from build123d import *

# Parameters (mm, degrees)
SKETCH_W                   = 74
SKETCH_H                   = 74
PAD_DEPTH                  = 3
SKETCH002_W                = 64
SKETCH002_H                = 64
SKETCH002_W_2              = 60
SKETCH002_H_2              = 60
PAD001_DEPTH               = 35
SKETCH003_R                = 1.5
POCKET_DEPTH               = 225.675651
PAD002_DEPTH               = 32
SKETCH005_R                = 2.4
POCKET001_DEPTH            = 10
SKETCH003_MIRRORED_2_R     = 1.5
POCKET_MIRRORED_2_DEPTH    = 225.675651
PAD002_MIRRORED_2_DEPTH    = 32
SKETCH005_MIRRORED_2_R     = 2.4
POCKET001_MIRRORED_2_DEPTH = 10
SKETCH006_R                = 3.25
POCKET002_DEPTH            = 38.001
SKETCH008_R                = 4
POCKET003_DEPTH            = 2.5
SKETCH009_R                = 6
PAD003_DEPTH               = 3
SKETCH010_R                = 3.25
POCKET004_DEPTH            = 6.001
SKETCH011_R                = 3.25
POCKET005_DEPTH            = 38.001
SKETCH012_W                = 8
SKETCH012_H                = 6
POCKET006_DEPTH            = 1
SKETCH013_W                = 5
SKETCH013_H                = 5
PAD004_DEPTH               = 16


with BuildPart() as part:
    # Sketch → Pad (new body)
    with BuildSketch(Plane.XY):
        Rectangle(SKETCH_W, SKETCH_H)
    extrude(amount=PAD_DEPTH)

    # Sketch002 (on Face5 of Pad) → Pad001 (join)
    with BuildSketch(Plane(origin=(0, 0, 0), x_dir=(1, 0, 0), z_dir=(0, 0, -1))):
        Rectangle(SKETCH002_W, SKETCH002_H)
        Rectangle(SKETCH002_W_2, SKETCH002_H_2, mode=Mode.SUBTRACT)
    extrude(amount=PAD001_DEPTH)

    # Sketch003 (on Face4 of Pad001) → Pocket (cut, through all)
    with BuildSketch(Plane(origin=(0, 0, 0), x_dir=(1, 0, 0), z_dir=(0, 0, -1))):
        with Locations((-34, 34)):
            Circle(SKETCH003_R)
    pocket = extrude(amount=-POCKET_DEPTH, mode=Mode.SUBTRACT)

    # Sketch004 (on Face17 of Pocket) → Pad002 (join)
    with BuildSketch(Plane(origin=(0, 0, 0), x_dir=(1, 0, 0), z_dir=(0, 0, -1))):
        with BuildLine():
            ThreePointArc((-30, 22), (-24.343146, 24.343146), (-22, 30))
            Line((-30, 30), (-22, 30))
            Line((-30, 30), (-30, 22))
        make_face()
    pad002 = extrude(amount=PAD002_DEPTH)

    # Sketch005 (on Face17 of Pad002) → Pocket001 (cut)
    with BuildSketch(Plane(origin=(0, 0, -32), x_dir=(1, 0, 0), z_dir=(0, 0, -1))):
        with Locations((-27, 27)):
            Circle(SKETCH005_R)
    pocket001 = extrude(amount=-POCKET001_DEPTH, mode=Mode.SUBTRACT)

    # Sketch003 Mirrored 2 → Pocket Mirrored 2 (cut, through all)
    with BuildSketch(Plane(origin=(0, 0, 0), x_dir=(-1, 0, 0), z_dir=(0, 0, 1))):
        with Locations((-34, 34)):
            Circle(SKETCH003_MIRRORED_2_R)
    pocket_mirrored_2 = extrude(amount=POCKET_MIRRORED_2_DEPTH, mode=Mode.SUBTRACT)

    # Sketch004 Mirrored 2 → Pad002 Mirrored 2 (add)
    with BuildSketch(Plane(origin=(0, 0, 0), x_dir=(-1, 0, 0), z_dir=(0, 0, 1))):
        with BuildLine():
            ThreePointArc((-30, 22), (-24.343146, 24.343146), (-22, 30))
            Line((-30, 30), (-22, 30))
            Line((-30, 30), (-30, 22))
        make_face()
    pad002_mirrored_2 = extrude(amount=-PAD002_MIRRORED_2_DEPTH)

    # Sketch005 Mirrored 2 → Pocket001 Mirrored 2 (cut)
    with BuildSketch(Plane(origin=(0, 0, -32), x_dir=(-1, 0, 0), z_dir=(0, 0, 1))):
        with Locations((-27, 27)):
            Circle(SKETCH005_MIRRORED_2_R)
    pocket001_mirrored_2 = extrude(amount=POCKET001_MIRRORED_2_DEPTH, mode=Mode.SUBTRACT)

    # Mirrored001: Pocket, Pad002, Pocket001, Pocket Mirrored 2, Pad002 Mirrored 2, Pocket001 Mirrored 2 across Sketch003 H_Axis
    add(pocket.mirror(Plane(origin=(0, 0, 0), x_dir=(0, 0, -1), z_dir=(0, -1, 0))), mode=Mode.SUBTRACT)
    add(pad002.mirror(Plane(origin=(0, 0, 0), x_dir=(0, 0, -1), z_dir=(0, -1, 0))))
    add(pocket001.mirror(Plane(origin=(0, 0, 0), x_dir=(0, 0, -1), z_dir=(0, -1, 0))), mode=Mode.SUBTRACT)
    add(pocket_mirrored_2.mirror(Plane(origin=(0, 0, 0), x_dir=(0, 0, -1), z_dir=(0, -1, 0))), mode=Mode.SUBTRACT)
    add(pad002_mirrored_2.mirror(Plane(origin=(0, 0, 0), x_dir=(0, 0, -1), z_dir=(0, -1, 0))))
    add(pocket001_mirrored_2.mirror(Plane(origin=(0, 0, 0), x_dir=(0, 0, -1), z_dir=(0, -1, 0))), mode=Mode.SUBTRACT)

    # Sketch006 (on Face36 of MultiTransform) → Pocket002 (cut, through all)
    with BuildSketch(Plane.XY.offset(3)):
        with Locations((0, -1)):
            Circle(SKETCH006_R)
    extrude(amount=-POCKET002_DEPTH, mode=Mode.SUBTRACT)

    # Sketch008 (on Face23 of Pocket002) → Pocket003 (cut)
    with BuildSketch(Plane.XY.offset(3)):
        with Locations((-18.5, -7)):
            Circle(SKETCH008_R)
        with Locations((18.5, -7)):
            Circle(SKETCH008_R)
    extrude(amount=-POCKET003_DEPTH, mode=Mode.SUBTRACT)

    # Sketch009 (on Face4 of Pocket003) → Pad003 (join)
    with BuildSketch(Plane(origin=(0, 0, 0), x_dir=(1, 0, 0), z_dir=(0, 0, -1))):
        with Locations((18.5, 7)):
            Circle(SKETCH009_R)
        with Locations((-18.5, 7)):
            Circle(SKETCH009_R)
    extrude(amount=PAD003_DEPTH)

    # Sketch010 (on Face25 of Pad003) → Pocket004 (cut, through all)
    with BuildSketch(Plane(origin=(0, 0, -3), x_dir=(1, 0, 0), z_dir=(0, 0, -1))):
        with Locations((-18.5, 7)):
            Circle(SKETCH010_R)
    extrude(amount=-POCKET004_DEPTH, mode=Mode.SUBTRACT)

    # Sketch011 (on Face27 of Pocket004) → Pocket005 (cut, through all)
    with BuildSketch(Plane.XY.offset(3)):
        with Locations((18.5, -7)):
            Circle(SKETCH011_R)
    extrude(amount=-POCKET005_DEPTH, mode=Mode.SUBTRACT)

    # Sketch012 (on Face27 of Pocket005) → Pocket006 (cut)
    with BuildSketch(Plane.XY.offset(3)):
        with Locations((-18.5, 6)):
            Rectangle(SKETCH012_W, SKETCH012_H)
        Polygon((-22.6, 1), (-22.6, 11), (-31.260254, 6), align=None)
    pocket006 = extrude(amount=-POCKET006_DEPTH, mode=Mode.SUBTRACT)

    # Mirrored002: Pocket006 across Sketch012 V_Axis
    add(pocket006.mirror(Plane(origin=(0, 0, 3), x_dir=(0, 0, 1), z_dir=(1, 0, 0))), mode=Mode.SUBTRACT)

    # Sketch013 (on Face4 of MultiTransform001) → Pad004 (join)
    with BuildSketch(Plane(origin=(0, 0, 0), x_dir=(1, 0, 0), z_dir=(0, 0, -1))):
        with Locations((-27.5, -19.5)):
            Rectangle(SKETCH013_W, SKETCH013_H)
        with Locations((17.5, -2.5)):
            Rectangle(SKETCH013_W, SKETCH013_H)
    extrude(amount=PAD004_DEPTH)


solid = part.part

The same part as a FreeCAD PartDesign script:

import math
import FreeCAD as App
import Part
import Sketcher
from FreeCAD import Vector
Q = App.Units.Quantity


def add_polygon(sketch, points):
    """Adds a closed chain of lines whose ends are joined by coincident constraints."""
    first, n = sketch.GeometryCount, len(points)
    for a, b in zip(points, points[1:] + points[:1]):
        sketch.addGeometry(Part.LineSegment(App.Vector(*a, 0), App.Vector(*b, 0)), False)
    for i in range(n):
        sketch.addConstraint(Sketcher.Constraint("Coincident", first + i, 2, first + (i + 1) % n, 1))

doc = App.newDocument("Part")
body = doc.addObject("PartDesign::Body", "Body")

# Sketch on XY plane
sketch1 = doc.addObject("Sketcher::SketchObject", "Sketch")
body.addObject(sketch1)
sketch1.AttachmentSupport = (doc.XY_Plane, [""])
sketch1.MapMode = "FlatFace"
add_polygon(sketch1, [(-37, 37), (-37, -37), (37, -37), (37, 37)])  # lines 0-3
sketch1.addConstraint([
    Sketcher.Constraint("Vertical", 0),
    Sketcher.Constraint("Horizontal", 1),
    Sketcher.Constraint("Vertical", 2),
    Sketcher.Constraint("Horizontal", 3),
    Sketcher.Constraint("Symmetric", 0, 2, 2, 2, -1, 1),
    Sketcher.Constraint("Equal", 3, 0),
    Sketcher.Constraint("DistanceX", 1, 1, 1, 2, Q("74 mm")),
])
pad1 = doc.addObject("PartDesign::Pad", "Pad")
body.addObject(pad1)
pad1.Profile = sketch1
pad1.Length = 3

# Sketch on XY plane
sketch2 = doc.addObject("Sketcher::SketchObject", "Sketch001")
body.addObject(sketch2)
sketch2.AttachmentSupport = (doc.XY_Plane, [""])
sketch2.MapMode = "FlatFace"
add_polygon(sketch2, [(-32, -32), (-32, 32), (32, 32), (32, -32)])  # lines 0-3
add_polygon(sketch2, [(30, 30), (-30, 30), (-30, -30), (30, -30)])  # lines 4-7
sketch2.addConstraint([
    Sketcher.Constraint("Vertical", 0),
    Sketcher.Constraint("Horizontal", 1),
    Sketcher.Constraint("Vertical", 2),
    Sketcher.Constraint("Horizontal", 3),
    Sketcher.Constraint("Horizontal", 4),
    Sketcher.Constraint("Vertical", 5),
    Sketcher.Constraint("Horizontal", 6),
    Sketcher.Constraint("Vertical", 7),
    Sketcher.Constraint("Symmetric", 0, 2, 2, 2, -1, 1),
    Sketcher.Constraint("Symmetric", 4, 2, 6, 2, -1, 1),
    Sketcher.Constraint("Equal", 3, 0),
    Sketcher.Constraint("Equal", 6, 5),
    Sketcher.Constraint("DistanceX", 1, 1, 1, 2, Q("64 mm")),
    Sketcher.Constraint("DistanceX", 4, 2, 4, 1, Q("60 mm")),
])
pad2 = doc.addObject("PartDesign::Pad", "Pad001")
body.addObject(pad2)
pad2.Profile = sketch2
pad2.Length = 35
pad2.Reversed = True

# Sketch on XY plane
sketch3 = doc.addObject("Sketcher::SketchObject", "Sketch002")
body.addObject(sketch3)
sketch3.AttachmentSupport = (doc.XY_Plane, [""])
sketch3.MapMode = "FlatFace"
sketch3.addGeometry(Part.Circle(Vector(-34, -34, 0), Vector(0, 0, 1), 1.5), False)
sketch3.addConstraint([
    Sketcher.Constraint("Diameter", 0, Q("3 mm")),
    Sketcher.Constraint("DistanceX", 0, 3, -1, 1, Q("34 mm")),
    Sketcher.Constraint("DistanceY", 0, 3, -1, 1, Q("34 mm")),
])
pocket1 = doc.addObject("PartDesign::Pocket", "Pocket")
body.addObject(pocket1)
pocket1.Profile = sketch3
pocket1.Type = "ThroughAll"
pocket1.Reversed = True

# Sketch on XY plane
sketch4 = doc.addObject("Sketcher::SketchObject", "Sketch003")
body.addObject(sketch4)
sketch4.AttachmentSupport = (doc.XY_Plane, [""])
sketch4.MapMode = "FlatFace"
sketch4.addGeometry([
    Part.ArcOfCircle(Part.Circle(Vector(-30, -30, 0), Vector(0, 0, 1), 8), math.radians(0), math.radians(90)),
    Part.LineSegment(Vector(-22, -30, 0), Vector(-30, -30, 0)),
    Part.LineSegment(Vector(-30, -30, 0), Vector(-30, -22, 0)),
], False)
sketch4.addConstraint([
    Sketcher.Constraint("Coincident", 0, 1, 1, 1),
    Sketcher.Constraint("Coincident", 1, 2, 2, 1),
    Sketcher.Constraint("Coincident", 2, 2, 0, 2),
    Sketcher.Constraint("Horizontal", 1),
    Sketcher.Constraint("Vertical", 2),
    Sketcher.Constraint("Coincident", 1, 2, 0, 3),
    Sketcher.Constraint("Radius", 0, Q("8.000001 mm")),
    Sketcher.Constraint("DistanceX", 0, 3, -1, 1, Q("30.000001 mm")),
    Sketcher.Constraint("DistanceY", 0, 3, -1, 1, Q("30.000001 mm")),
])
pad3 = doc.addObject("PartDesign::Pad", "Pad002")
body.addObject(pad3)
pad3.Profile = sketch4
pad3.Length = 32
pad3.Reversed = True

# Sketch on XY plane
sketch5 = doc.addObject("Sketcher::SketchObject", "Sketch004")
body.addObject(sketch5)
sketch5.AttachmentSupport = (doc.XY_Plane, [""])
sketch5.MapMode = "FlatFace"
sketch5.AttachmentOffset = App.Placement(Vector(0, 0, -32), App.Rotation())
sketch5.addGeometry(Part.Circle(Vector(-27, -27, 0), Vector(0, 0, 1), 2.4), False)
sketch5.addConstraint([
    Sketcher.Constraint("Diameter", 0, Q("4.8 mm")),
    Sketcher.Constraint("DistanceX", 0, 3, -1, 1, Q("27 mm")),
    Sketcher.Constraint("DistanceY", 0, 3, -1, 1, Q("27 mm")),
])
pocket2 = doc.addObject("PartDesign::Pocket", "Pocket001")
body.addObject(pocket2)
pocket2.Profile = sketch5
pocket2.Length = 10
pocket2.Reversed = True

# Sketch on XY plane
sketch6 = doc.addObject("Sketcher::SketchObject", "Sketch005")
body.addObject(sketch6)
sketch6.AttachmentSupport = (doc.XY_Plane, [""])
sketch6.MapMode = "FlatFace"
sketch6.addGeometry(Part.Circle(Vector(34, -34, 0), Vector(0, 0, 1), 1.5), False)
sketch6.addConstraint([
    Sketcher.Constraint("Diameter", 0, Q("3 mm")),
    Sketcher.Constraint("DistanceX", -1, 1, 0, 3, Q("34 mm")),
    Sketcher.Constraint("DistanceY", 0, 3, -1, 1, Q("34 mm")),
])
pocket3 = doc.addObject("PartDesign::Pocket", "Pocket002")
body.addObject(pocket3)
pocket3.Profile = sketch6
pocket3.Type = "ThroughAll"
pocket3.Reversed = True

# Sketch on XY plane
sketch7 = doc.addObject("Sketcher::SketchObject", "Sketch006")
body.addObject(sketch7)
sketch7.AttachmentSupport = (doc.XY_Plane, [""])
sketch7.MapMode = "FlatFace"
sketch7.addGeometry([
    Part.ArcOfCircle(Part.Circle(Vector(30, -30, 0), Vector(0, 0, 1), 8), math.radians(90), math.radians(180)),
    Part.LineSegment(Vector(22, -30, 0), Vector(30, -30, 0)),
    Part.LineSegment(Vector(30, -30, 0), Vector(30, -22, 0)),
], False)
sketch7.addConstraint([
    Sketcher.Constraint("Coincident", 0, 2, 1, 1),
    Sketcher.Constraint("Coincident", 1, 2, 2, 1),
    Sketcher.Constraint("Coincident", 2, 2, 0, 1),
    Sketcher.Constraint("Horizontal", 1),
    Sketcher.Constraint("Vertical", 2),
    Sketcher.Constraint("Coincident", 1, 2, 0, 3),
    Sketcher.Constraint("Radius", 0, Q("8.000001 mm")),
    Sketcher.Constraint("DistanceX", -1, 1, 0, 3, Q("30.000001 mm")),
    Sketcher.Constraint("DistanceY", 0, 3, -1, 1, Q("30.000001 mm")),
])
pad4 = doc.addObject("PartDesign::Pad", "Pad003")
body.addObject(pad4)
pad4.Profile = sketch7
pad4.Length = 32
pad4.Reversed = True

# Sketch on XY plane
sketch8 = doc.addObject("Sketcher::SketchObject", "Sketch007")
body.addObject(sketch8)
sketch8.AttachmentSupport = (doc.XY_Plane, [""])
sketch8.MapMode = "FlatFace"
sketch8.AttachmentOffset = App.Placement(Vector(0, 0, -32), App.Rotation())
sketch8.addGeometry(Part.Circle(Vector(27, -27, 0), Vector(0, 0, 1), 2.4), False)
sketch8.addConstraint([
    Sketcher.Constraint("Diameter", 0, Q("4.8 mm")),
    Sketcher.Constraint("DistanceX", -1, 1, 0, 3, Q("27 mm")),
    Sketcher.Constraint("DistanceY", 0, 3, -1, 1, Q("27 mm")),
])
pocket4 = doc.addObject("PartDesign::Pocket", "Pocket003")
body.addObject(pocket4)
pocket4.Profile = sketch8
pocket4.Length = 10
pocket4.Reversed = True
doc.recompute()

mirrored = doc.addObject("PartDesign::Mirrored", "Mirrored")
body.addObject(mirrored)
mirrored.Originals = [pocket1, pad3, pocket2, pocket3, pad4, pocket4]
mirrored.MirrorPlane = (doc.XZ_Plane, [""])
body.Tip = mirrored

# Sketch on XY plane
sketch9 = doc.addObject("Sketcher::SketchObject", "Sketch008")
body.addObject(sketch9)
sketch9.AttachmentSupport = (doc.XY_Plane, [""])
sketch9.MapMode = "FlatFace"
sketch9.AttachmentOffset = App.Placement(Vector(0, 0, 3), App.Rotation())
sketch9.addGeometry(Part.Circle(Vector(0, -1, 0), Vector(0, 0, 1), 3.2), False)
sketch9.addConstraint([
    Sketcher.Constraint("PointOnObject", 0, 3, -2),
    Sketcher.Constraint("Diameter", 0, Q("6.5 mm")),
    Sketcher.Constraint("DistanceY", 0, 3, -1, 1, Q("1 mm")),
])
pocket5 = doc.addObject("PartDesign::Pocket", "Pocket004")
body.addObject(pocket5)
pocket5.Profile = sketch9
pocket5.Type = "ThroughAll"

# Sketch on XY plane
sketch10 = doc.addObject("Sketcher::SketchObject", "Sketch009")
body.addObject(sketch10)
sketch10.AttachmentSupport = (doc.XY_Plane, [""])
sketch10.MapMode = "FlatFace"
sketch10.AttachmentOffset = App.Placement(Vector(0, 0, 3), App.Rotation())
sketch10.addGeometry([
    Part.Circle(Vector(-18.5, -7, 0), Vector(0, 0, 1), 4),
    Part.Circle(Vector(18.5, -7, 0), Vector(0, 0, 1), 4),
], False)
sketch10.addConstraint([
    Sketcher.Constraint("Equal", 0, 1),
    Sketcher.Constraint("Symmetric", 0, 3, 1, 3, -2),
    Sketcher.Constraint("Diameter", 0, Q("8 mm")),
    Sketcher.Constraint("DistanceY", 0, 3, -1, 1, Q("7 mm")),
    Sketcher.Constraint("DistanceX", 0, 3, 1, 3, Q("37 mm")),
])
pocket6 = doc.addObject("PartDesign::Pocket", "Pocket005")
body.addObject(pocket6)
pocket6.Profile = sketch10
pocket6.Length = 2.5

# Sketch on XY plane
sketch11 = doc.addObject("Sketcher::SketchObject", "Sketch010")
body.addObject(sketch11)
sketch11.AttachmentSupport = (doc.XY_Plane, [""])
sketch11.MapMode = "FlatFace"
sketch11.addGeometry([
    Part.Circle(Vector(18, -7, 0), Vector(0, 0, 1), 6),
    Part.Circle(Vector(-18, -7, 0), Vector(0, 0, 1), 6),
], False)
sketch11.addConstraint([
    Sketcher.Constraint("Equal", 0, 1),
    Sketcher.Constraint("Symmetric", 0, 3, 1, 3, -2),
    Sketcher.Constraint("Diameter", 0, Q("12 mm")),
    Sketcher.Constraint("DistanceY", 0, 3, -1, 1, Q("7 mm")),
    Sketcher.Constraint("DistanceX", 1, 3, 0, 3, Q("37 mm")),
])
pad5 = doc.addObject("PartDesign::Pad", "Pad004")
body.addObject(pad5)
pad5.Profile = sketch11
pad5.Length = 3
pad5.Reversed = True

# Sketch on XY plane
sketch12 = doc.addObject("Sketcher::SketchObject", "Sketch011")
body.addObject(sketch12)
sketch12.AttachmentSupport = (doc.XY_Plane, [""])
sketch12.MapMode = "FlatFace"
sketch12.AttachmentOffset = App.Placement(Vector(0, 0, -3), App.Rotation())
sketch12.addGeometry(Part.Circle(Vector(-18.5, -7, 0), Vector(0, 0, 1), 3.2), False)
sketch12.addConstraint([
    Sketcher.Constraint("Diameter", 0, Q("6.5 mm")),
    Sketcher.Constraint("DistanceY", 0, 3, -1, 1, Q("7 mm")),
    Sketcher.Constraint("DistanceX", 0, 3, -1, 1, Q("18.5 mm")),
])
pocket7 = doc.addObject("PartDesign::Pocket", "Pocket006")
body.addObject(pocket7)
pocket7.Profile = sketch12
pocket7.Type = "ThroughAll"
pocket7.Reversed = True

# Sketch on XY plane
sketch13 = doc.addObject("Sketcher::SketchObject", "Sketch012")
body.addObject(sketch13)
sketch13.AttachmentSupport = (doc.XY_Plane, [""])
sketch13.MapMode = "FlatFace"
sketch13.AttachmentOffset = App.Placement(Vector(0, 0, 3), App.Rotation())
sketch13.addGeometry(Part.Circle(Vector(18.5, -7, 0), Vector(0, 0, 1), 3.2), False)
sketch13.addConstraint([
    Sketcher.Constraint("Diameter", 0, Q("6.5 mm")),
    Sketcher.Constraint("DistanceY", 0, 3, -1, 1, Q("7 mm")),
    Sketcher.Constraint("DistanceX", -1, 1, 0, 3, Q("18.5 mm")),
])
pocket8 = doc.addObject("PartDesign::Pocket", "Pocket007")
body.addObject(pocket8)
pocket8.Profile = sketch13
pocket8.Type = "ThroughAll"

# Sketch on XY plane
sketch14 = doc.addObject("Sketcher::SketchObject", "Sketch013")
body.addObject(sketch14)
sketch14.AttachmentSupport = (doc.XY_Plane, [""])
sketch14.MapMode = "FlatFace"
sketch14.AttachmentOffset = App.Placement(Vector(0, 0, 3), App.Rotation())
add_polygon(sketch14, [(-22, 9), (-22, 3), (-14, 3), (-14, 9)])  # lines 0-3
add_polygon(sketch14, [(-23, 1), (-23, 11), (-31, 6)])  # lines 4-6
sketch14.addConstraint([
    Sketcher.Constraint("Vertical", 0),
    Sketcher.Constraint("Horizontal", 1),
    Sketcher.Constraint("Vertical", 2),
    Sketcher.Constraint("Horizontal", 3),
    Sketcher.Constraint("Vertical", 4),
    Sketcher.Constraint("Equal", 5, 6),
    Sketcher.Constraint("DistanceX", 1, 1, 1, 2, Q("8 mm")),
    Sketcher.Constraint("DistanceY", 0, 2, 0, 1, Q("6 mm")),
    Sketcher.Constraint("DistanceY", 4, 1, 4, 2, Q("10 mm")),
    Sketcher.Constraint("Angle", 5, Q("-150 deg")),
    Sketcher.Constraint("DistanceY", -1, 1, 0, 2, Q("3 mm")),
    Sketcher.Constraint("DistanceY", -1, 1, 4, 2, Q("11 mm")),
    Sketcher.Constraint("DistanceX", 0, 2, -1, 1, Q("22.5 mm")),
    Sketcher.Constraint("DistanceX", 4, 2, -1, 1, Q("22.6 mm")),
])
pocket9 = doc.addObject("PartDesign::Pocket", "Pocket008")
body.addObject(pocket9)
pocket9.Profile = sketch14
pocket9.Length = 1
doc.recompute()

mirrored2 = doc.addObject("PartDesign::Mirrored", "Mirrored001")
body.addObject(mirrored2)
mirrored2.Originals = [pocket9]
mirrored2.MirrorPlane = (doc.YZ_Plane, [""])
body.Tip = mirrored2

# Sketch on XY plane
sketch15 = doc.addObject("Sketcher::SketchObject", "Sketch014")
body.addObject(sketch15)
sketch15.AttachmentSupport = (doc.XY_Plane, [""])
sketch15.MapMode = "FlatFace"
add_polygon(sketch15, [(-30, 17), (-30, 22), (-25, 22), (-25, 17)])  # lines 0-3
add_polygon(sketch15, [(15, 0), (15, 5), (20, 5), (20, 0)])  # lines 4-7
sketch15.addConstraint([
    Sketcher.Constraint("Vertical", 0),
    Sketcher.Constraint("Horizontal", 1),
    Sketcher.Constraint("Vertical", 2),
    Sketcher.Constraint("Horizontal", 3),
    Sketcher.Constraint("Vertical", 4),
    Sketcher.Constraint("Horizontal", 5),
    Sketcher.Constraint("Vertical", 6),
    Sketcher.Constraint("Horizontal", 7),
    Sketcher.Constraint("PointOnObject", 6, 2, -1),
    Sketcher.Constraint("Equal", 3, 5),
    Sketcher.Constraint("Equal", 7, 0),
    Sketcher.Constraint("Equal", 2, 4),
    Sketcher.Constraint("DistanceX", 1, 1, 1, 2, Q("5 mm")),
    Sketcher.Constraint("DistanceX", 0, 2, -1, 1, Q("30 mm")),
    Sketcher.Constraint("DistanceY", -1, 1, 0, 2, Q("22 mm")),
    Sketcher.Constraint("DistanceX", -1, 1, 4, 2, Q("15 mm")),
])
pad6 = doc.addObject("PartDesign::Pad", "Pad005")
body.addObject(pad6)
pad6.Profile = sketch15
pad6.Length = 16
pad6.Reversed = True

doc.recompute()
